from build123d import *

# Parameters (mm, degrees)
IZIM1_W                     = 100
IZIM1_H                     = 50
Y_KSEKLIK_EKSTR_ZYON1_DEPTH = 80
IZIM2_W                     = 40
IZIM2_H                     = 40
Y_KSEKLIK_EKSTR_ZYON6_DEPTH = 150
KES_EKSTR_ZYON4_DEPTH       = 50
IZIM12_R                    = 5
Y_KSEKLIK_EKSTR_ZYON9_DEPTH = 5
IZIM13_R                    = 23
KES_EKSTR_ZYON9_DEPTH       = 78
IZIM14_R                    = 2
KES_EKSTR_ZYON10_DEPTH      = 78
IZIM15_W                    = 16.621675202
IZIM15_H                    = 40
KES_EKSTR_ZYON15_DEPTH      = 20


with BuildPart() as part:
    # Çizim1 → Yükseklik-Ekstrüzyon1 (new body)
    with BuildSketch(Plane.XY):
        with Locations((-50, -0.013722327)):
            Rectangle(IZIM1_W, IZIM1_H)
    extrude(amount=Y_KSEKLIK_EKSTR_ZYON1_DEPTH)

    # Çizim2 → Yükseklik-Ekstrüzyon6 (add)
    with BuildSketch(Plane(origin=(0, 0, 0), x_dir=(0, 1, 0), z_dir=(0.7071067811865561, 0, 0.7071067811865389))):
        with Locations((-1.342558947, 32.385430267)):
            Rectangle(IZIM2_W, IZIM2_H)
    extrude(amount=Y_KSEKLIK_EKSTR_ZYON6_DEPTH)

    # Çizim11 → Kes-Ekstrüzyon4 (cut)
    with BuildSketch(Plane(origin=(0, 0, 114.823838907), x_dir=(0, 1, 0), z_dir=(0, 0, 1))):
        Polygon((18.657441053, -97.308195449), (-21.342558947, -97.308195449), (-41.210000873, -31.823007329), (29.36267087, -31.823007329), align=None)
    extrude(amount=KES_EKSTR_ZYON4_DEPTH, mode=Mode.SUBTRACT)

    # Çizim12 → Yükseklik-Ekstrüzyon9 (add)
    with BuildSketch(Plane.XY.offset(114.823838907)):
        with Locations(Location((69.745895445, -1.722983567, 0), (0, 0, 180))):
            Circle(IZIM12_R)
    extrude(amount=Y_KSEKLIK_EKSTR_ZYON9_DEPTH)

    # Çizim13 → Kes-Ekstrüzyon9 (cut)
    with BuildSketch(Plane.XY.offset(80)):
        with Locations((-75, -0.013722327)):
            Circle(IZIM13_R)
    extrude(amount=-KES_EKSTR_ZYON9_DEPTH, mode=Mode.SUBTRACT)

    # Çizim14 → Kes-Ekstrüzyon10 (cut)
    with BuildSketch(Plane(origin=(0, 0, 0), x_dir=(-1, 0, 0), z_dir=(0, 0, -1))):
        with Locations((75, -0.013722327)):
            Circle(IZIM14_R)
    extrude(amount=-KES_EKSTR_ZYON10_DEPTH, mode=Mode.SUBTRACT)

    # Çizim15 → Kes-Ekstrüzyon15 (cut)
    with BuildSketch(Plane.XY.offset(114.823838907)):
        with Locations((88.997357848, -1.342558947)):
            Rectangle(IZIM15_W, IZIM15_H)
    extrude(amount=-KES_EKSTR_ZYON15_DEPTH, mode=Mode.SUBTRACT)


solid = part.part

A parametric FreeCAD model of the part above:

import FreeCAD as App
import Part
import Sketcher
from FreeCAD import Vector


def add_polygon(sketch, points):
    """Adds a closed chain of lines whose ends are joined by coincident constraints."""
    first, n = sketch.GeometryCount, len(points)
    for a, b in zip(points, points[1:] + points[:1]):
        sketch.addGeometry(Part.LineSegment(App.Vector(*a, 0), App.Vector(*b, 0)), False)
    for i in range(n):
        sketch.addConstraint(Sketcher.Constraint("Coincident", first + i, 2, first + (i + 1) % n, 1))

doc = App.newDocument("Part")
body = doc.addObject("PartDesign::Body", "Body")

sketch1 = doc.addObject("Sketcher::SketchObject", "Sketch")
body.addObject(sketch1)
sketch1.AttachmentSupport = (doc.XY_Plane, [""])
sketch1.MapMode = "FlatFace"
add_polygon(sketch1, [(-100, 24.986278), (-100, -25.013722), (0, -25.013722), (0, 24.986278)])
sketch1.addConstraint([
    Sketcher.Constraint("Vertical", 0),
    Sketcher.Constraint("Horizontal", 1),
    Sketcher.Constraint("Vertical", 2),
    Sketcher.Constraint("Horizontal", 3),
    Sketcher.Constraint("PointOnObject", 1, 2, -2),
    Sketcher.Constraint("DistanceX", 1, 1, 1, 2, 100.0),
    Sketcher.Constraint("DistanceY", 0, 2, 0, 1, 50.0),
    Sketcher.Constraint("DistanceY", 0, 2, -1, 1, 25.013722),
])
pad1 = doc.addObject("PartDesign::Pad", "Pad")
body.addObject(pad1)
pad1.Profile = sketch1
pad1.Length = 80

sketch2 = doc.addObject("Sketcher::SketchObject", "Sketch001")
body.addObject(sketch2)
sketch2.Placement = App.Placement(Vector(0, 0, 0), App.Rotation(Vector(0, 1, 0), Vector(-0.707106781, 0, 0.707106781), Vector(0.707106781, 0, 0.707106781), "ZXY"))
add_polygon(sketch2, [(-21.342559, 52.38543), (-21.342559, 12.38543), (18.657441, 12.38543), (18.657441, 52.38543)])
sketch2.addConstraint([
    Sketcher.Constraint("Vertical", 0),
    Sketcher.Constraint("Horizontal", 1),
    Sketcher.Constraint("Vertical", 2),
    Sketcher.Constraint("Horizontal", 3),
    Sketcher.Constraint("Equal", 3, 0),
    Sketcher.Constraint("DistanceX", 1, 1, 1, 2, 40.0),
    Sketcher.Constraint("DistanceX", 0, 2, -1, 1, 21.342559),
    Sketcher.Constraint("DistanceY", -1, 1, 0, 2, 12.38543),
])
pad2 = doc.addObject("PartDesign::Pad", "Pad001")
body.addObject(pad2)
pad2.Profile = sketch2
pad2.Length = 150

sketch3 = doc.addObject("Sketcher::SketchObject", "Sketch002")
body.addObject(sketch3)
sketch3.AttachmentSupport = (doc.XY_Plane, [""])
sketch3.MapMode = "FlatFace"
sketch3.AttachmentOffset = App.Placement(Vector(0, 0, 114.823839), App.Rotation())
add_polygon(sketch3, [(97.308195, -21.342559), (97.308195, 18.657441), (31.823007, 29.362671), (31.823007, -41.210001)])
sketch3.addConstraint([
    Sketcher.Constraint("Vertical", 0),
    Sketcher.Constraint("Vertical", 2),
    Sketcher.Constraint("DistanceY", 0, 1, 0, 2, 40.0),
    Sketcher.Constraint("DistanceY", 2, 2, -1, 1, 41.210001),
    Sketcher.Constraint("DistanceY", 2, 2, 2, 1, 70.572672),
    Sketcher.Constraint("Distance", 1, 66.354441),
    Sketcher.Constraint("Distance", 3, 68.432632),
    Sketcher.Constraint("DistanceX", -1, 1, 0, 2, 97.308195),
])
pocket1 = doc.addObject("PartDesign::Pocket", "Pocket")
body.addObject(pocket1)
pocket1.Profile = sketch3
pocket1.Length = 50
pocket1.Reversed = True

sketch4 = doc.addObject("Sketcher::SketchObject", "Sketch003")
body.addObject(sketch4)
sketch4.AttachmentSupport = (doc.XY_Plane, [""])
sketch4.MapMode = "FlatFace"
sketch4.AttachmentOffset = App.Placement(Vector(0, 0, 114.823839), App.Rotation())
sketch4.addGeometry(Part.Circle(Vector(69.745895, -1.722984, 0), Vector(0, 0, 1), 5), False)
sketch4.addConstraint([
    Sketcher.Constraint("Diameter", 0, 10.0),
    Sketcher.Constraint("DistanceX", -1, 1, 0, 3, 69.745895),
    Sketcher.Constraint("DistanceY", 0, 3, -1, 1, 1.722984),
])
pad3 = doc.addObject("PartDesign::Pad", "Pad002")
body.addObject(pad3)
pad3.Profile = sketch4
pad3.Length = 5

sketch5 = doc.addObject("Sketcher::SketchObject", "Sketch004")
body.addObject(sketch5)
sketch5.AttachmentSupport = (doc.XY_Plane, [""])
sketch5.MapMode = "FlatFace"
sketch5.AttachmentOffset = App.Placement(Vector(0, 0, 80), App.Rotation())
sketch5.addGeometry(Part.Circle(Vector(-75, -0.013722, 0), Vector(0, 0, 1), 23), False)
sketch5.addConstraint([
    Sketcher.Constraint("Diameter", 0, 46.0),
    Sketcher.Constraint("DistanceX", 0, 3, -1, 1, 75.0),
    Sketcher.Constraint("DistanceY", 0, 3, -1, 1, 0.013722),
])
pocket2 = doc.addObject("PartDesign::Pocket", "Pocket001")
body.addObject(pocket2)
pocket2.Profile = sketch5
pocket2.Length = 78

sketch6 = doc.addObject("Sketcher::SketchObject", "Sketch005")
body.addObject(sketch6)
sketch6.AttachmentSupport = (doc.XY_Plane, [""])
sketch6.MapMode = "FlatFace"
sketch6.addGeometry(Part.Circle(Vector(-75, -0.013722, 0), Vector(0, 0, 1), 2), False)
sketch6.addConstraint([
    Sketcher.Constraint("Diameter", 0, 4.0),
    Sketcher.Constraint("DistanceX", 0, 3, -1, 1, 75.0),
    Sketcher.Constraint("DistanceY", 0, 3, -1, 1, 0.013722),
])
pocket3 = doc.addObject("PartDesign::Pocket", "Pocket002")
body.addObject(pocket3)
pocket3.Profile = sketch6
pocket3.Length = 78
pocket3.Reversed = True

sketch7 = doc.addObject("Sketcher::SketchObject", "Sketch006")
body.addObject(sketch7)
sketch7.AttachmentSupport = (doc.XY_Plane, [""])
sketch7.MapMode = "FlatFace"
sketch7.AttachmentOffset = App.Placement(Vector(0, 0, 114.823839), App.Rotation())
add_polygon(sketch7, [(80.68652, 18.657441), (80.68652, -21.342559), (97.308195, -21.342559), (97.308195, 18.657441)])
sketch7.addConstraint([
    Sketcher.Constraint("Vertical", 0),
    Sketcher.Constraint("Horizontal", 1),
    Sketcher.Constraint("Vertical", 2),
    Sketcher.Constraint("Horizontal", 3),
    Sketcher.Constraint("DistanceY", 0, 2, 0, 1, 40.0),
    Sketcher.Constraint("DistanceX", 1, 1, 1, 2, 16.621675),
    Sketcher.Constraint("DistanceX", -1, 1, 0, 2, 80.68652),
    Sketcher.Constraint("DistanceY", 0, 2, -1, 1, 21.342559),
])
pocket4 = doc.addObject("PartDesign::Pocket", "Pocket003")
body.addObject(pocket4)
pocket4.Profile = sketch7
pocket4.Length = 20

doc.recompute()
